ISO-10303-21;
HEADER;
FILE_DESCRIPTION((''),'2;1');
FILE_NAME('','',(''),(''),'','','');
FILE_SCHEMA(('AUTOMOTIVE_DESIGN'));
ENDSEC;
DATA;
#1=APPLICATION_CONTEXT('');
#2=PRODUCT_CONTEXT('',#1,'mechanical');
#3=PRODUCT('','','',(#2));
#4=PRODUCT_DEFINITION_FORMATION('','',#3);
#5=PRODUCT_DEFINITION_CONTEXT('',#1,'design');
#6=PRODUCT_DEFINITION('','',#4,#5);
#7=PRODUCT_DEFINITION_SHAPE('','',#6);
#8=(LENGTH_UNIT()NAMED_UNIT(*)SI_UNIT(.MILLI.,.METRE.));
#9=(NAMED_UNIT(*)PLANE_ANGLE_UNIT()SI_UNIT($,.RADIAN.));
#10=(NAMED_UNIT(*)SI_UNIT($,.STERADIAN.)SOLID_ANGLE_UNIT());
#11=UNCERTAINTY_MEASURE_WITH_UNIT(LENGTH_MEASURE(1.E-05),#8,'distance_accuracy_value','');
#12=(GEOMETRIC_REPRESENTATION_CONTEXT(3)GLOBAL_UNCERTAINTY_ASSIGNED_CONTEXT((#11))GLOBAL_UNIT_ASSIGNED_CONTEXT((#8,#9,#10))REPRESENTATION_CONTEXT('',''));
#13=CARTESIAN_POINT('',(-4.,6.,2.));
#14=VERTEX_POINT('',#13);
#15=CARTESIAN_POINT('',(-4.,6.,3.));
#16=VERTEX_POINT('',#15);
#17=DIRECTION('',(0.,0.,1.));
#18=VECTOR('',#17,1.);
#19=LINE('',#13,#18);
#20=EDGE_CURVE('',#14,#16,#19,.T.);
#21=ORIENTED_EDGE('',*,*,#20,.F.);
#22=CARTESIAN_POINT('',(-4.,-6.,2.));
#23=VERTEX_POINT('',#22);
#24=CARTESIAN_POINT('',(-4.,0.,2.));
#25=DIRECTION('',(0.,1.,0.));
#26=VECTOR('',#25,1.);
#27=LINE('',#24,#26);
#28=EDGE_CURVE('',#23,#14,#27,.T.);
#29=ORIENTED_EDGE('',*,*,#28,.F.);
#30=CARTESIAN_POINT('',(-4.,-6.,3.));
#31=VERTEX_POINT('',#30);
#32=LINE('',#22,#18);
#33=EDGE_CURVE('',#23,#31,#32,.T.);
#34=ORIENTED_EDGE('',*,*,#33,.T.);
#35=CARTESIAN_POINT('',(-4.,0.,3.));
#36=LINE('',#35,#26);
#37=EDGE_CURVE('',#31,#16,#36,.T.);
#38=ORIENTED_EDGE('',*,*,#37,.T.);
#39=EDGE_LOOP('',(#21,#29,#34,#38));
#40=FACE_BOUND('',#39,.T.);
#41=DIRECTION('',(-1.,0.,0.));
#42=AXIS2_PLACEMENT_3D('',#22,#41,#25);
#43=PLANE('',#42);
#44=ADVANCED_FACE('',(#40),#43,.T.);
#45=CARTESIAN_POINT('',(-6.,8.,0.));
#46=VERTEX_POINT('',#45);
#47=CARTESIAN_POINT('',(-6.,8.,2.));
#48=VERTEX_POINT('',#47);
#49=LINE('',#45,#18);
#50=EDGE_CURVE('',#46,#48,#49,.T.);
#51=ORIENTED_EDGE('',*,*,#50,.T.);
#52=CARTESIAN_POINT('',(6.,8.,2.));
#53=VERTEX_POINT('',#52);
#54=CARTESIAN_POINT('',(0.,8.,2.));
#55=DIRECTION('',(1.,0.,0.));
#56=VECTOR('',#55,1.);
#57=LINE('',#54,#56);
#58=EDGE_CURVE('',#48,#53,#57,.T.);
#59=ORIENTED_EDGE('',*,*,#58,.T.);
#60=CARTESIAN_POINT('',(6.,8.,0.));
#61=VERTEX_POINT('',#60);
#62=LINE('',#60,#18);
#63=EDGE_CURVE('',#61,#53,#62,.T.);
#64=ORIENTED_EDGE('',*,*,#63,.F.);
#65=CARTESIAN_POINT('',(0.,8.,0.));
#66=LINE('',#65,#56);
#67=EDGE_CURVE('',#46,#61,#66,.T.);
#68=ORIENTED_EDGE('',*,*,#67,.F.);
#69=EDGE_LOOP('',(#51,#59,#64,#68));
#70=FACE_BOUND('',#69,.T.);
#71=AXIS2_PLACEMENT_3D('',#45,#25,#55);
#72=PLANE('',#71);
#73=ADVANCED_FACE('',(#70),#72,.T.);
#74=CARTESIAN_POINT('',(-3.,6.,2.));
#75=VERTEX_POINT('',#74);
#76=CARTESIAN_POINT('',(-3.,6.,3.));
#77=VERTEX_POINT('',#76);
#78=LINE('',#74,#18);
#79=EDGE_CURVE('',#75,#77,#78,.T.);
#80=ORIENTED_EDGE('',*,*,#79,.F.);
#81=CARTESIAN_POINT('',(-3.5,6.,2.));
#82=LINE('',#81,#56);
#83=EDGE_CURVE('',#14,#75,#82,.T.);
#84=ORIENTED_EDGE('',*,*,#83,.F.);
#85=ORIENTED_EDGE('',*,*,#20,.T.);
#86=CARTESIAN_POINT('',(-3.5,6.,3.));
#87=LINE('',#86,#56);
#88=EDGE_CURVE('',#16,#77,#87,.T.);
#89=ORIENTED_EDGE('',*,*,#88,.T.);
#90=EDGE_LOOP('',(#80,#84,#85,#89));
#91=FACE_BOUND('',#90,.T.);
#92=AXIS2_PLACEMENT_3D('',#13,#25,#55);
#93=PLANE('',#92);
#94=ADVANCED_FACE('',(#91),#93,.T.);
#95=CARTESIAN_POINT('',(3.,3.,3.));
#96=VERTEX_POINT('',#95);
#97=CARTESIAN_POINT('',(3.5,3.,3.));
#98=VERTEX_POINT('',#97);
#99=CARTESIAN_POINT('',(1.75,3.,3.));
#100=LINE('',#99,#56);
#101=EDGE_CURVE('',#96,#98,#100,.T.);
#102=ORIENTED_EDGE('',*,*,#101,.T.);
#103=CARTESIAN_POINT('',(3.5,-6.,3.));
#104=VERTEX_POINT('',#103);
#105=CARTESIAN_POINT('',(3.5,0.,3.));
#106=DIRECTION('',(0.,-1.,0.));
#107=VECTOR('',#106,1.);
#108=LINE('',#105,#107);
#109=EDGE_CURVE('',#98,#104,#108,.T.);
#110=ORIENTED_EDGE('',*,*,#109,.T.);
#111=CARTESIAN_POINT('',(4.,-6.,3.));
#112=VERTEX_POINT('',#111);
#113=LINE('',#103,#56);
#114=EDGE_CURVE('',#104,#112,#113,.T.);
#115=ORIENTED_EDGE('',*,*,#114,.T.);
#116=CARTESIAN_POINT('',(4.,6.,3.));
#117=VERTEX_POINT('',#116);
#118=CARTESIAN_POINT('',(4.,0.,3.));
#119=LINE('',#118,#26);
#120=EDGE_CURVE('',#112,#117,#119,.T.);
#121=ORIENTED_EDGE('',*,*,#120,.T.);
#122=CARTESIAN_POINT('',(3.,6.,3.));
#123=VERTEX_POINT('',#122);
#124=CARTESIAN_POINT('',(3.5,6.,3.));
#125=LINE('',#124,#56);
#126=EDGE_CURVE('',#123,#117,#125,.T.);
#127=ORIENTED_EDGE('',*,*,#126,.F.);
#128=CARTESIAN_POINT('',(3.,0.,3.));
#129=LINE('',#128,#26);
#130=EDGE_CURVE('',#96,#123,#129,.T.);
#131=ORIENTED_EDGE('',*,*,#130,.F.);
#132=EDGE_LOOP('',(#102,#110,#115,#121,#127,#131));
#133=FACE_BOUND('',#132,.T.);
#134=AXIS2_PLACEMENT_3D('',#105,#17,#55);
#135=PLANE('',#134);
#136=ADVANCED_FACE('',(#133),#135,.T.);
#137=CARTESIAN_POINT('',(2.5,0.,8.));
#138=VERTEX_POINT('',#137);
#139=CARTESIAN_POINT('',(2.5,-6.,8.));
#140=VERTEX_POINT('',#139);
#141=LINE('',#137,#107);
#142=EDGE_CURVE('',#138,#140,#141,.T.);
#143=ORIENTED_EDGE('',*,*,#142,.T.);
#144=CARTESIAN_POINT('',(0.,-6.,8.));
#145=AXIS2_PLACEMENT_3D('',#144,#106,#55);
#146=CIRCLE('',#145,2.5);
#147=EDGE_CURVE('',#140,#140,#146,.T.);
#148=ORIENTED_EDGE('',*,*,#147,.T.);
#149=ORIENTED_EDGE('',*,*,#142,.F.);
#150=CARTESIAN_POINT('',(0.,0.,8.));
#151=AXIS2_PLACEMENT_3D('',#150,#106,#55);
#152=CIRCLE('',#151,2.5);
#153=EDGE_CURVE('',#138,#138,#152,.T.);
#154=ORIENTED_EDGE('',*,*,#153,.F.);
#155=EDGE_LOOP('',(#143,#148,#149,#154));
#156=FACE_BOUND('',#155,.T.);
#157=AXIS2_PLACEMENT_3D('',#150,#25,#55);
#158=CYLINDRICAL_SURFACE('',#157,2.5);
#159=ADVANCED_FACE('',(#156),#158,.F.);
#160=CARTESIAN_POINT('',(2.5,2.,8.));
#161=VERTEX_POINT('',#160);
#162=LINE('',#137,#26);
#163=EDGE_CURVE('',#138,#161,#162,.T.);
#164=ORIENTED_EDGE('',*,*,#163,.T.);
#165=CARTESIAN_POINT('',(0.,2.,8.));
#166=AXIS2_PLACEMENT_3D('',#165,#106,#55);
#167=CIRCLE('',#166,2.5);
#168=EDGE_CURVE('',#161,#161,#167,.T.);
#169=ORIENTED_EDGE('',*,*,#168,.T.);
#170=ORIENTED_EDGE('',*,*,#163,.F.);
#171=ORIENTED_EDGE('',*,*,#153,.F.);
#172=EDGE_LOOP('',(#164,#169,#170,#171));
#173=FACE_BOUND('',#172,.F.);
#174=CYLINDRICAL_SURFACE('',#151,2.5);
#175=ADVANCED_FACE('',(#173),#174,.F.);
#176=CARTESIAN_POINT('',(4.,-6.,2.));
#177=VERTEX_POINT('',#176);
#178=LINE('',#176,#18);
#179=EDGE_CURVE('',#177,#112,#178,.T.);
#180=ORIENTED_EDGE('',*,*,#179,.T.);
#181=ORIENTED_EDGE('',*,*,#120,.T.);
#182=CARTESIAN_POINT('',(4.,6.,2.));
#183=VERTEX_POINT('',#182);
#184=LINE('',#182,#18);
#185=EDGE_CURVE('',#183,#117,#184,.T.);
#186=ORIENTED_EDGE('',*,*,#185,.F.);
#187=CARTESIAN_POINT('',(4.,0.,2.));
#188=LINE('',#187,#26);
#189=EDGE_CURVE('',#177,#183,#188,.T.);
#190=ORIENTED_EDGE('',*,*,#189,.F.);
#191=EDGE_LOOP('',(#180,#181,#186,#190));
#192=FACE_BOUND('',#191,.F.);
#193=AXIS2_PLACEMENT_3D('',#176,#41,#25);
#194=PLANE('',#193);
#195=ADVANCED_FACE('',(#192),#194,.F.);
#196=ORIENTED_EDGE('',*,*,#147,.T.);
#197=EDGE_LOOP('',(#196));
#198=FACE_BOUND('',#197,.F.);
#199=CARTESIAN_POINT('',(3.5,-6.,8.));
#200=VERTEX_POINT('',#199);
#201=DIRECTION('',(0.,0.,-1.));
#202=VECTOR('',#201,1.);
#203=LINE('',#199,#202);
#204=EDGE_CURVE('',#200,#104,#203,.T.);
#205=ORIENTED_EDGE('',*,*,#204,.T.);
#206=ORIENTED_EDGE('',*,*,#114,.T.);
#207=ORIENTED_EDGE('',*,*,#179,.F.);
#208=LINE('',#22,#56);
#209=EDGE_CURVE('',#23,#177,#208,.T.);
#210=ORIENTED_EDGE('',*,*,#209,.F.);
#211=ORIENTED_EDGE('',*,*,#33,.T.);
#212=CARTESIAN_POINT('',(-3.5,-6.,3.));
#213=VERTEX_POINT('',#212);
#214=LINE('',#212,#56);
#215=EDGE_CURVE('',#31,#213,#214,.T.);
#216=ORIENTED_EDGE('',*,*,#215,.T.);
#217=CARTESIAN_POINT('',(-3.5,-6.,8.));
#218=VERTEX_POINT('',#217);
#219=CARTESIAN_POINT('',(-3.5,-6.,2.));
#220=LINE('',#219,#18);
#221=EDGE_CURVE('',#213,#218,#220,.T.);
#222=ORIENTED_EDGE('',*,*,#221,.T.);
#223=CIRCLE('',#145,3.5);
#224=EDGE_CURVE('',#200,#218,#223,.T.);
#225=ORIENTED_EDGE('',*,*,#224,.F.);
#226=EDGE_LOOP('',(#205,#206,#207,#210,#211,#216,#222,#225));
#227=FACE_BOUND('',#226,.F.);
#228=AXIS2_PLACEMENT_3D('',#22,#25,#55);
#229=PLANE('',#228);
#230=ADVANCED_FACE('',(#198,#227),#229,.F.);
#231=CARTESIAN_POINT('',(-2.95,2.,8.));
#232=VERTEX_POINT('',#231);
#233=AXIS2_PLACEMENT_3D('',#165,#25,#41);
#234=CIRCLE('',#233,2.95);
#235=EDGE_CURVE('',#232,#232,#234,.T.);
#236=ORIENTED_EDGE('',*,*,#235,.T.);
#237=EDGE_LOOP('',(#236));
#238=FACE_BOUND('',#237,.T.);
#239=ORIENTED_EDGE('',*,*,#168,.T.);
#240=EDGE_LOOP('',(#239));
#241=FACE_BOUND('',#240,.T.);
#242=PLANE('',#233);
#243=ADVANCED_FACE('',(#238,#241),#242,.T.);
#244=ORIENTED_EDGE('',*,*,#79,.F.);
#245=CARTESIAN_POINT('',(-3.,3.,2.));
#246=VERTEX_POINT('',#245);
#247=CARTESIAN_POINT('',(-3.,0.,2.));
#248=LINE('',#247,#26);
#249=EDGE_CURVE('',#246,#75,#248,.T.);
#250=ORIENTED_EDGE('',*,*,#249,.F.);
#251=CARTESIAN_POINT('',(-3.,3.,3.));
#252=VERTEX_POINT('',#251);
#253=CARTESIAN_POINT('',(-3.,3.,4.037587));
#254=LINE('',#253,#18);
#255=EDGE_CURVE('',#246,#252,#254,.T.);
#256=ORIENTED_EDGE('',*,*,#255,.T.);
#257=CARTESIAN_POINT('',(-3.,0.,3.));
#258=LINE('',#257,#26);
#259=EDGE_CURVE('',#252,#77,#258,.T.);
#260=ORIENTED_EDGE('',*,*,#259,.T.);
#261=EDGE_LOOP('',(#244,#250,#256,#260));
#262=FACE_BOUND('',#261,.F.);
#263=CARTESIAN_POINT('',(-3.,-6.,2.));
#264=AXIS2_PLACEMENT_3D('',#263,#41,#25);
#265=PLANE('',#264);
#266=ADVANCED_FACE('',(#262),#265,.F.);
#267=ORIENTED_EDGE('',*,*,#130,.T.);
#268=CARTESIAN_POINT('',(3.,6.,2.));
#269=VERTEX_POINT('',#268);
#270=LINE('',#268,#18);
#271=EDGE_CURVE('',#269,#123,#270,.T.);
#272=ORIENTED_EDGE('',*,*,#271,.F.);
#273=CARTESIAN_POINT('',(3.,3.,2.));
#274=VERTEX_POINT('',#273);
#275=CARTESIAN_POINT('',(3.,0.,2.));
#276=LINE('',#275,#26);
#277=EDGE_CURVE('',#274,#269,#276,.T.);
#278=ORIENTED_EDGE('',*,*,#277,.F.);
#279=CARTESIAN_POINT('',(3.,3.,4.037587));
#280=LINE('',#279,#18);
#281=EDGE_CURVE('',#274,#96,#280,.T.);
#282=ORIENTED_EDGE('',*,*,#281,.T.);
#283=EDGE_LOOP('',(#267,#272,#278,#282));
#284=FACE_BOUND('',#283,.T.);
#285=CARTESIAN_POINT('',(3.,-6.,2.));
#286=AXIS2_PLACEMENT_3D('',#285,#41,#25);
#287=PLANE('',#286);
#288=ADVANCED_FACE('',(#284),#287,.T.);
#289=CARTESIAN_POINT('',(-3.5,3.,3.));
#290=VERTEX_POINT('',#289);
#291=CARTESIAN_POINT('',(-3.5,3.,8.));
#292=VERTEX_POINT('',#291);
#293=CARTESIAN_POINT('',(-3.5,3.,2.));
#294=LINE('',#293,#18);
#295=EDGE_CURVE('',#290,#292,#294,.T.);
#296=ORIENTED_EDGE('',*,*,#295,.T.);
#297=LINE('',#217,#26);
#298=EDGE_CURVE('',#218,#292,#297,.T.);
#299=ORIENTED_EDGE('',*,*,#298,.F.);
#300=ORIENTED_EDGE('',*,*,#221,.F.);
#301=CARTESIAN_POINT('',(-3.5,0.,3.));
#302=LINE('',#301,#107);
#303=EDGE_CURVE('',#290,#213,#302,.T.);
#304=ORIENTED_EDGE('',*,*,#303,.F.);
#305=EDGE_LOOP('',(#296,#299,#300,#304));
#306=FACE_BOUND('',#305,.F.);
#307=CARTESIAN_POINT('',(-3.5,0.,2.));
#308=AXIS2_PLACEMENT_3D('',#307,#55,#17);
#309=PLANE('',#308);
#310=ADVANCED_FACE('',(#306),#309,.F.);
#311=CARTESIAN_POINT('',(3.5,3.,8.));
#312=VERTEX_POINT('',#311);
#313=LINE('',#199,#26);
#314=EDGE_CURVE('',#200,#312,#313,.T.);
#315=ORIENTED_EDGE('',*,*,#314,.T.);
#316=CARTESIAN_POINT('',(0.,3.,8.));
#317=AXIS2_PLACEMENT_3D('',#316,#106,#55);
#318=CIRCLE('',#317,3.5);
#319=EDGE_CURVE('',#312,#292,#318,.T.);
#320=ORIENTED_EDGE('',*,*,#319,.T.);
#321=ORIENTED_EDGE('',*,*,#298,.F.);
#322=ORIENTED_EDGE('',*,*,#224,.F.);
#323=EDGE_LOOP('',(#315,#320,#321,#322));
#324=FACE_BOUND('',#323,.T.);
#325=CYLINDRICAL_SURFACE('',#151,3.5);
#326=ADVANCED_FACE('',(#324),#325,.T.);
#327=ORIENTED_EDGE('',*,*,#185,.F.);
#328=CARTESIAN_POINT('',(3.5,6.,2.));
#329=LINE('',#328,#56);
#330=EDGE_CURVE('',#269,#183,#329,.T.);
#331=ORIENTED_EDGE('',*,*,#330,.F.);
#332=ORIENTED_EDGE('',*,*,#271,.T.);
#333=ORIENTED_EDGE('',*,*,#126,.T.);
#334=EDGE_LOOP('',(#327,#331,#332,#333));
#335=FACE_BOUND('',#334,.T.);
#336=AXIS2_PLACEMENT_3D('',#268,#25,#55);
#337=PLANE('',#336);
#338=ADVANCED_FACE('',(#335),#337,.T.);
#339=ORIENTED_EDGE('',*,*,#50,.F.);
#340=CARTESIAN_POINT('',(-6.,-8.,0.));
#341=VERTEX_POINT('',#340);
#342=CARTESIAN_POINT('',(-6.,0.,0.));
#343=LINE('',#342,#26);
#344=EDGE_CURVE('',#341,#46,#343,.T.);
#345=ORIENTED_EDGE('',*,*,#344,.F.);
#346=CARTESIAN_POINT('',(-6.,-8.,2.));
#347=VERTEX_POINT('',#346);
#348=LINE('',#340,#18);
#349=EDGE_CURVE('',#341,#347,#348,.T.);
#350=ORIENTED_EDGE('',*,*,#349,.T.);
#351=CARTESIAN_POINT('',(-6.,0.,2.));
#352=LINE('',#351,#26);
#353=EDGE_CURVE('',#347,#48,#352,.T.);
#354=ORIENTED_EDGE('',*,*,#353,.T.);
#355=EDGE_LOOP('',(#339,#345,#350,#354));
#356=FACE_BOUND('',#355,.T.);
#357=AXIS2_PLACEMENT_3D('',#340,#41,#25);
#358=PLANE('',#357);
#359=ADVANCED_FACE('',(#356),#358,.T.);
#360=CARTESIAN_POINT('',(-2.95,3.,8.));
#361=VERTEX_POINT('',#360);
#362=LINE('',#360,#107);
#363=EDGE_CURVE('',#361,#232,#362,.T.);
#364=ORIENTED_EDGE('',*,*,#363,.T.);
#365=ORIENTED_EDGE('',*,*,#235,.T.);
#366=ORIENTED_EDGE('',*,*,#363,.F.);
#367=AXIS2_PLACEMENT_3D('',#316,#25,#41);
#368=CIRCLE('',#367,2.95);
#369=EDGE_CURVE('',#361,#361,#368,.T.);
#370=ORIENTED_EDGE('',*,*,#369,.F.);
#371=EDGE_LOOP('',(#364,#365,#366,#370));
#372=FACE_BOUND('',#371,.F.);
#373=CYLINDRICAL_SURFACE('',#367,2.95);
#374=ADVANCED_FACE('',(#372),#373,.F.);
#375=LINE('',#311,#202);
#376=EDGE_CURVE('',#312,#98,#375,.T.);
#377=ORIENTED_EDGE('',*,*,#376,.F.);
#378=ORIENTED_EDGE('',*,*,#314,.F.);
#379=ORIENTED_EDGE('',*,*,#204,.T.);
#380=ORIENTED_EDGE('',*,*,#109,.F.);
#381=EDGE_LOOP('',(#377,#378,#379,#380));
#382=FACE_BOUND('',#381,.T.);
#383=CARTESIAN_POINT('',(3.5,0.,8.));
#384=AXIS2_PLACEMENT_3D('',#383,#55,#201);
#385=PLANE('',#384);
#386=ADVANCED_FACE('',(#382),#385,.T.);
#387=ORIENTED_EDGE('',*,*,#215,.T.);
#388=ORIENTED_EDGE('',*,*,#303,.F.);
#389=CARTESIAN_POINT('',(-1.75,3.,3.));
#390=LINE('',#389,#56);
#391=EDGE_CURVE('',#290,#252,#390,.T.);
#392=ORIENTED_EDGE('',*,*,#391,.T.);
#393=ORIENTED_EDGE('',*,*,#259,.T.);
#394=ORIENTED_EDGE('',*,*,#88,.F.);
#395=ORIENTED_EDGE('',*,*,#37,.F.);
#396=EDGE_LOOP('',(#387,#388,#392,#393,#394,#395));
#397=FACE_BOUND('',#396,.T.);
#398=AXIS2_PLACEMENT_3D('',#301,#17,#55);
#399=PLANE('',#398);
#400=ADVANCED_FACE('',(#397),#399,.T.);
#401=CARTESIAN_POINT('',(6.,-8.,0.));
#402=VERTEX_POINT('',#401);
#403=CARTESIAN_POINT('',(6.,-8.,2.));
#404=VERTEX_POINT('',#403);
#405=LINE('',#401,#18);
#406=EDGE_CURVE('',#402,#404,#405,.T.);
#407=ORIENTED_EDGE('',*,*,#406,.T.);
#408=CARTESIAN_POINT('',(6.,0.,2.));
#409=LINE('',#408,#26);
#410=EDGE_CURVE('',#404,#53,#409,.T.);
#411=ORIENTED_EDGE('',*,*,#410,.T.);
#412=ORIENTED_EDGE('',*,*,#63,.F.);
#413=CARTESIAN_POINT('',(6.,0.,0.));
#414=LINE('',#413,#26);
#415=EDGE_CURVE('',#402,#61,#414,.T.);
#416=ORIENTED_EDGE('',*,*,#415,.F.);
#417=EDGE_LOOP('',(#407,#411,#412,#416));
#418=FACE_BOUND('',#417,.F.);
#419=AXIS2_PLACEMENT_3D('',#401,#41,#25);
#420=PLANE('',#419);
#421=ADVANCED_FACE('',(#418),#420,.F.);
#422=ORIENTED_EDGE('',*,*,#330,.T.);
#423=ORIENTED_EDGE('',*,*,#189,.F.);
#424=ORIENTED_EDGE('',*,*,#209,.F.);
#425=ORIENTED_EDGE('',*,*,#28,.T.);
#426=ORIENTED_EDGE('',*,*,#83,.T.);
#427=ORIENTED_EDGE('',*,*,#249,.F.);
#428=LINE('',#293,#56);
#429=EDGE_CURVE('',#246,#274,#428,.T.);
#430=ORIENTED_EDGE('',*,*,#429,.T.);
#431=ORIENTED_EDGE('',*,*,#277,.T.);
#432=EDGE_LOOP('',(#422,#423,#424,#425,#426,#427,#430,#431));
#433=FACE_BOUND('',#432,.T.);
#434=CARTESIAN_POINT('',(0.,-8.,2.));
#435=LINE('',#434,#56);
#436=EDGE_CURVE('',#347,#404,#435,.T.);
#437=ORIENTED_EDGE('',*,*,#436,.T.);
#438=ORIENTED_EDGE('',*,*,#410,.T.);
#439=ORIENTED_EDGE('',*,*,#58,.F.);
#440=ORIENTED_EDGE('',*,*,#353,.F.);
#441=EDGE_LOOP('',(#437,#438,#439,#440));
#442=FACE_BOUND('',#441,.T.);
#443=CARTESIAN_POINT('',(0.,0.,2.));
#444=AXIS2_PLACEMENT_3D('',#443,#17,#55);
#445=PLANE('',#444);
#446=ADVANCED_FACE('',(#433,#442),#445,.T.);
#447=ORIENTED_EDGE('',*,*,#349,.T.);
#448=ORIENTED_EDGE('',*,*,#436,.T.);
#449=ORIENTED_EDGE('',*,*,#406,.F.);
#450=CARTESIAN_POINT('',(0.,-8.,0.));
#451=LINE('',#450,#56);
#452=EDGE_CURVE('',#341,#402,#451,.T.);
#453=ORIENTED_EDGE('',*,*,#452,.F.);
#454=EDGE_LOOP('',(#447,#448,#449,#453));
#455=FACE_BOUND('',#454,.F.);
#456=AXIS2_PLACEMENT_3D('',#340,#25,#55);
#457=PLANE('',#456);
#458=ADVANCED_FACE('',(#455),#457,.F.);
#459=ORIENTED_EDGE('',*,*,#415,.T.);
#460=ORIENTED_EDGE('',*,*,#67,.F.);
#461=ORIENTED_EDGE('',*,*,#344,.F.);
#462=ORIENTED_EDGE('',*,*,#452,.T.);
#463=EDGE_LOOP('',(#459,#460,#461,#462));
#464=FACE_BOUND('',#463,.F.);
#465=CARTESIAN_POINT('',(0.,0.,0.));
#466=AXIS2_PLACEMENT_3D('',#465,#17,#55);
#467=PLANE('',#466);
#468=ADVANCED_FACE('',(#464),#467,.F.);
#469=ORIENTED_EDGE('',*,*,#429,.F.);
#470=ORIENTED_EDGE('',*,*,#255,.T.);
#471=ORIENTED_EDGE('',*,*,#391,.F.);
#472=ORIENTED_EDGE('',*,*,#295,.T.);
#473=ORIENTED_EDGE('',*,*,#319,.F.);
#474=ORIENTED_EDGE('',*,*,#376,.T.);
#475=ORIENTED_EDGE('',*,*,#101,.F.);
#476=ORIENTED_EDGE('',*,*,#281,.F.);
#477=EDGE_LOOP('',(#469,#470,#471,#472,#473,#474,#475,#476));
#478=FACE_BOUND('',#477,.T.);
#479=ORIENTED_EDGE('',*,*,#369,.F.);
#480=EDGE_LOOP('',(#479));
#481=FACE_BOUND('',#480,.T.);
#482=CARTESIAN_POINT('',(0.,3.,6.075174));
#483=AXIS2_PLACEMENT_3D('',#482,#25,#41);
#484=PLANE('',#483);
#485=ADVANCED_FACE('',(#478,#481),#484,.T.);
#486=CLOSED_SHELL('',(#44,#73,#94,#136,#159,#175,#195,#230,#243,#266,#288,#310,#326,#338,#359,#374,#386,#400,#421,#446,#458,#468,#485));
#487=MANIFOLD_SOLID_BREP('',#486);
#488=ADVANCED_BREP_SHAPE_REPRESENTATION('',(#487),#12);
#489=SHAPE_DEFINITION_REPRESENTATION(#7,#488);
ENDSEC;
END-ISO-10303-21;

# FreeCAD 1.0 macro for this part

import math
import FreeCAD as App
import Part
import Sketcher


def add_polygon(sketch, points):
    """Adds a closed chain of lines whose ends are joined by coincident constraints."""
    first, n = sketch.GeometryCount, len(points)
    for a, b in zip(points, points[1:] + points[:1]):
        sketch.addGeometry(Part.LineSegment(App.Vector(*a, 0), App.Vector(*b, 0)), False)
    for i in range(n):
        sketch.addConstraint(Sketcher.Constraint("Coincident", first + i, 2, first + (i + 1) % n, 1))

doc = App.newDocument("Part")
body = doc.addObject("PartDesign::Body", "Body")

# Sketch on XY plane
sketch1 = doc.addObject("Sketcher::SketchObject", "Sketch")
body.addObject(sketch1)
sketch1.AttachmentSupport = (doc.XY_Plane, [""])
sketch1.MapMode = "FlatFace"
add_polygon(sketch1, [(-6, 8), (-6, -8), (6, -8), (6, 8)])  # lines 0-3
sketch1.addConstraint([
    Sketcher.Constraint("Vertical", 0),
    Sketcher.Constraint("Horizontal", 1),
    Sketcher.Constraint("Vertical", 2),
    Sketcher.Constraint("Horizontal", 3),
    Sketcher.Constraint("Symmetric", 0, 2, 2, 2, -1, 1),
    Sketcher.Constraint("DistanceX", 1, 1, 1, 2, 12.0),
    Sketcher.Constraint("DistanceY", 0, 2, 0, 1, 16.0),
])
pad1 = doc.addObject("PartDesign::Pad", "Pad")
body.addObject(pad1)
pad1.Profile = sketch1
pad1.Length = 2

# Sketch on XZ plane
sketch2 = doc.addObject("Sketcher::SketchObject", "Sketch001")
body.addObject(sketch2)
sketch2.AttachmentSupport = (doc.XZ_Plane, [""])
sketch2.MapMode = "FlatFace"
sketch2.addGeometry([
    Part.LineSegment(App.Vector(-3.5, 8, 0), App.Vector(-3.5, 2, 0)),  # 0
    Part.LineSegment(App.Vector(-3.5, 2, 0), App.Vector(3.5, 2, 0)),  # 1
    Part.LineSegment(App.Vector(3.5, 2, 0), App.Vector(3.5, 8, 0)),  # 2
    Part.ArcOfCircle(Part.Circle(App.Vector(0, 8, 0), App.Vector(0, 0, 1), 3.5), math.radians(0), math.radians(180)),  # 3
    Part.Circle(App.Vector(0, 8, 0), App.Vector(0, 0, 1), 2.5),  # 4
], False)
sketch2.addConstraint([
    Sketcher.Constraint("Coincident", 0, 2, 1, 1),
    Sketcher.Constraint("Coincident", 1, 2, 2, 1),
    Sketcher.Constraint("Tangent", 2, 2, 3, 1),
    Sketcher.Constraint("Tangent", 3, 2, 0, 1),
    Sketcher.Constraint("Vertical", 0),
    Sketcher.Constraint("Horizontal", 1),
    Sketcher.Constraint("Vertical", 2),
    Sketcher.Constraint("Coincident", 4, 3, 3, 3),
    Sketcher.Constraint("PointOnObject", 3, 3, -2),
    Sketcher.Constraint("Diameter", 4, 5.0),
    Sketcher.Constraint("Radius", 3, 3.5),
    Sketcher.Constraint("DistanceY", 0, 2, 0, 1, 6.0),
    Sketcher.Constraint("DistanceY", -1, 1, 3, 3, 8.0),
])
pad2 = doc.addObject("PartDesign::Pad", "Pad001")
body.addObject(pad2)
pad2.Profile = sketch2
pad2.Type = "TwoLengths"
pad2.Length = 6
pad2.Length2 = 3

# Sketch on XZ plane
sketch3 = doc.addObject("Sketcher::SketchObject", "Sketch002")
body.addObject(sketch3)
sketch3.AttachmentSupport = (doc.XZ_Plane, [""])
sketch3.MapMode = "FlatFace"
sketch3.AttachmentOffset = App.Placement(App.Vector(0, 0, -3), App.Rotation())
sketch3.addGeometry(Part.Circle(App.Vector(0, 8, 0), App.Vector(0, 0, 1), 2.95), False)
sketch3.addConstraint([
    Sketcher.Constraint("PointOnObject", 0, 3, -2),
    Sketcher.Constraint("Diameter", 0, 5.9),
    Sketcher.Constraint("DistanceY", -1, 1, 0, 3, 8.0),
])
pocket1 = doc.addObject("PartDesign::Pocket", "Pocket")
body.addObject(pocket1)
pocket1.Profile = sketch3
pocket1.Length = 1
pocket1.Reversed = True

# Sketch on XY plane
sketch4 = doc.addObject("Sketcher::SketchObject", "Sketch003")
body.addObject(sketch4)
sketch4.AttachmentSupport = (doc.XY_Plane, [""])
sketch4.MapMode = "FlatFace"
sketch4.AttachmentOffset = App.Placement(App.Vector(0, 0, 2), App.Rotation())
add_polygon(sketch4, [(-4, 6), (-4, -6), (-3, -6), (-3, 6)])  # lines 0-3
add_polygon(sketch4, [(3, 6), (3, -6), (4, -6), (4, 6)])  # lines 4-7
sketch4.addConstraint([
    Sketcher.Constraint("Vertical", 0),
    Sketcher.Constraint("Horizontal", 1),
    Sketcher.Constraint("Vertical", 2),
    Sketcher.Constraint("Horizontal", 3),
    Sketcher.Constraint("Vertical", 4),
    Sketcher.Constraint("Horizontal", 5),
    Sketcher.Constraint("Vertical", 6),
    Sketcher.Constraint("Horizontal", 7),
    Sketcher.Constraint("Symmetric", 2, 2, 4, 2, -1, 1),
    Sketcher.Constraint("Symmetric", 0, 2, 6, 2, -1, 1),
    Sketcher.Constraint("Horizontal", 1, 2, 4, 2),
    Sketcher.Constraint("DistanceX", 1, 1, 1, 2, 1.0),
    Sketcher.Constraint("DistanceY", 0, 2, 0, 1, 12.0),
    Sketcher.Constraint("DistanceX", 0, 2, -1, 1, 4.0),
])
pad3 = doc.addObject("PartDesign::Pad", "Pad002")
body.addObject(pad3)
pad3.Profile = sketch4
pad3.Length = 1

doc.recompute()
